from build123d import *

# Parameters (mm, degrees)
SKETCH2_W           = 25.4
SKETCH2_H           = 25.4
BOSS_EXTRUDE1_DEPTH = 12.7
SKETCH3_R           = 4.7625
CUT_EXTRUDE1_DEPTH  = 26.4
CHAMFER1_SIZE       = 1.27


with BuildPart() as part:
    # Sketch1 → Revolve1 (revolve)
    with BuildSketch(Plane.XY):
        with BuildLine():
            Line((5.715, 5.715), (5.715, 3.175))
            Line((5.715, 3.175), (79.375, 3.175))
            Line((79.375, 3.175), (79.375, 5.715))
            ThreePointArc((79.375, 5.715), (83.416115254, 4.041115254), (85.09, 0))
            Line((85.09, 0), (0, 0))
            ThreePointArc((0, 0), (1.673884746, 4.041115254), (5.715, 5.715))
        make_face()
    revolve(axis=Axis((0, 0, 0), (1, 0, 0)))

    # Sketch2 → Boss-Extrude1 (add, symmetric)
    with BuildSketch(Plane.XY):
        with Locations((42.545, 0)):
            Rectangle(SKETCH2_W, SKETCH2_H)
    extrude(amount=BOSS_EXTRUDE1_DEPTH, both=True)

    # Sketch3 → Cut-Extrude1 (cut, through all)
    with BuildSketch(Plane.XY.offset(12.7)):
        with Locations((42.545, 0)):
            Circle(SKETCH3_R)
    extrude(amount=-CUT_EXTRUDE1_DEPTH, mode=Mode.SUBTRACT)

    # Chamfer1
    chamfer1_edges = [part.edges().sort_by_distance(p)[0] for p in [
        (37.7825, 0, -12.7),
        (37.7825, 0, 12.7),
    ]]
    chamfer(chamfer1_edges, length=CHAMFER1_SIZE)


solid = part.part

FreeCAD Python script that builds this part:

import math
import FreeCAD as App
import Part
import Sketcher

V = App.Vector
Q = App.Units.Quantity


def edges_at(feature, points):
    """Names of the edges that pass closest to the given points."""
    edges = feature.Shape.Edges
    near = lambda p: min(range(len(edges)), key=lambda i: edges[i].distToShape(Part.Vertex(*p))[0])
    return sorted({f"Edge{near(p) + 1}" for p in points})

doc = App.newDocument("Part")
body = doc.addObject("PartDesign::Body", "Body")

# Sketch on XY plane
sketch1 = body.newObject("Sketcher::SketchObject", "Sketch")
sketch1.AttachmentSupport = (doc.getObject("XY_Plane"), [""])
sketch1.MapMode = "FlatFace"
sketch1.addGeometry(Part.LineSegment(V(5.7, 3.2, 0), V(5.7, 5.7, 0)), False)
sketch1.addGeometry(Part.ArcOfCircle(Part.Circle(V(5.7, 0, 0), V(0, 0, 1), 5.7), math.radians(90), math.radians(180)), False)
sketch1.addGeometry(Part.LineSegment(V(0, 0, 0), V(85.1, 0, 0)), False)
sketch1.addGeometry(Part.ArcOfCircle(Part.Circle(V(79.4, 0, 0), V(0, 0, 1), 5.7), math.radians(0), math.radians(90)), False)
sketch1.addGeometry(Part.LineSegment(V(79.4, 5.7, 0), V(79.4, 3.2, 0)), False)
sketch1.addGeometry(Part.LineSegment(V(79.4, 3.2, 0), V(5.7, 3.2, 0)), False)
sketch1.addConstraint(Sketcher.Constraint("Coincident", 0, 2, 1, 1))
sketch1.addConstraint(Sketcher.Constraint("Coincident", 1, 2, 2, 1))
sketch1.addConstraint(Sketcher.Constraint("Coincident", 2, 2, 3, 1))
sketch1.addConstraint(Sketcher.Constraint("Coincident", 3, 2, 4, 1))
sketch1.addConstraint(Sketcher.Constraint("Coincident", 4, 2, 5, 1))
sketch1.addConstraint(Sketcher.Constraint("Coincident", 5, 2, 0, 1))
sketch1.addConstraint(Sketcher.Constraint("Vertical", 0))
sketch1.addConstraint(Sketcher.Constraint("Horizontal", 2))
sketch1.addConstraint(Sketcher.Constraint("Vertical", 4))
sketch1.addConstraint(Sketcher.Constraint("Horizontal", 5))
sketch1.addConstraint(Sketcher.Constraint("Coincident", 1, 2, -1, 1))
sketch1.addConstraint(Sketcher.Constraint("Equal", 1, 3))
sketch1.addConstraint(Sketcher.Constraint("PointOnObject", 1, 3, -1))
sketch1.addConstraint(Sketcher.Constraint("PointOnObject", 3, 3, -1))
sketch1.addConstraint(Sketcher.Constraint("Vertical", 1, 3, 0, 2))
sketch1.addConstraint(Sketcher.Constraint("DistanceX", 5, 2, 5, 1, Q("2.9 in")))
sketch1.addConstraint(Sketcher.Constraint("DistanceY", 0, 1, 0, 2, Q("0.1 in")))
sketch1.addConstraint(Sketcher.Constraint("Radius", 1, Q("0.225 in")))
sketch1.addConstraint(Sketcher.Constraint("DistanceX", 2, 1, 2, 2, Q("3.35 in")))
revolution = body.newObject("PartDesign::Revolution", "Revolution")
revolution.Profile = sketch1
revolution.ReferenceAxis = (sketch1, ["H_Axis"])
revolution.Angle = 360

# Sketch on XY plane
sketch2 = body.newObject("Sketcher::SketchObject", "Sketch001")
sketch2.AttachmentSupport = (doc.getObject("XY_Plane"), [""])
sketch2.MapMode = "FlatFace"
sketch2.addGeometry(Part.LineSegment(V(30, 13, 0), V(30, -13, 0)), False)
sketch2.addGeometry(Part.LineSegment(V(30, -13, 0), V(55, -13, 0)), False)
sketch2.addGeometry(Part.LineSegment(V(55, -13, 0), V(55, 13, 0)), False)
sketch2.addGeometry(Part.LineSegment(V(55, 13, 0), V(30, 13, 0)), False)
sketch2.addConstraint(Sketcher.Constraint("Coincident", 0, 2, 1, 1))
sketch2.addConstraint(Sketcher.Constraint("Coincident", 1, 2, 2, 1))
sketch2.addConstraint(Sketcher.Constraint("Coincident", 2, 2, 3, 1))
sketch2.addConstraint(Sketcher.Constraint("Coincident", 3, 2, 0, 1))
sketch2.addConstraint(Sketcher.Constraint("Vertical", 0))
sketch2.addConstraint(Sketcher.Constraint("Horizontal", 1))
sketch2.addConstraint(Sketcher.Constraint("Vertical", 2))
sketch2.addConstraint(Sketcher.Constraint("Horizontal", 3))
sketch2.addConstraint(Sketcher.Constraint("Equal", 3, 0))
sketch2.addConstraint(Sketcher.Constraint("DistanceX", 1, 1, 1, 2, Q("1 in")))
sketch2.addConstraint(Sketcher.Constraint("DistanceY", 0, 2, -1, 1, Q("0.5 in")))
sketch2.addConstraint(Sketcher.Constraint("DistanceX", -1, 1, 0, 2, Q("1.175 in")))
pad1 = body.newObject("PartDesign::Pad", "Pad")
pad1.Profile = sketch2
pad1.Length = Q("1 in")
pad1.Midplane = True

# Sketch on XY plane
sketch3 = body.newObject("Sketcher::SketchObject", "Sketch002")
sketch3.AttachmentSupport = (doc.getObject("XY_Plane"), [""])
sketch3.MapMode = "FlatFace"
sketch3.AttachmentOffset = App.Placement(V(0, 0, 0.5 * 25.4), App.Rotation())
sketch3.addGeometry(Part.Circle(V(42.5, 0, 0), V(0, 0, 1), 4.8), False)
sketch3.addConstraint(Sketcher.Constraint("PointOnObject", 0, 3, -1))
sketch3.addConstraint(Sketcher.Constraint("Diameter", 0, Q("0.375 in")))
sketch3.addConstraint(Sketcher.Constraint("DistanceX", -1, 1, 0, 3, Q("1.675 in")))
pocket1 = body.newObject("PartDesign::Pocket", "Pocket")
pocket1.Profile = sketch3
pocket1.Type = "ThroughAll"
doc.recompute()

chamfer = body.newObject("PartDesign::Chamfer", "Chamfer")
chamfer.Base = (pocket1, edges_at(pocket1, [(37.782, 0, -12.7), (37.782, 0, 12.7)]))
chamfer.Size = Q("0.05 in")

doc.recompute()
